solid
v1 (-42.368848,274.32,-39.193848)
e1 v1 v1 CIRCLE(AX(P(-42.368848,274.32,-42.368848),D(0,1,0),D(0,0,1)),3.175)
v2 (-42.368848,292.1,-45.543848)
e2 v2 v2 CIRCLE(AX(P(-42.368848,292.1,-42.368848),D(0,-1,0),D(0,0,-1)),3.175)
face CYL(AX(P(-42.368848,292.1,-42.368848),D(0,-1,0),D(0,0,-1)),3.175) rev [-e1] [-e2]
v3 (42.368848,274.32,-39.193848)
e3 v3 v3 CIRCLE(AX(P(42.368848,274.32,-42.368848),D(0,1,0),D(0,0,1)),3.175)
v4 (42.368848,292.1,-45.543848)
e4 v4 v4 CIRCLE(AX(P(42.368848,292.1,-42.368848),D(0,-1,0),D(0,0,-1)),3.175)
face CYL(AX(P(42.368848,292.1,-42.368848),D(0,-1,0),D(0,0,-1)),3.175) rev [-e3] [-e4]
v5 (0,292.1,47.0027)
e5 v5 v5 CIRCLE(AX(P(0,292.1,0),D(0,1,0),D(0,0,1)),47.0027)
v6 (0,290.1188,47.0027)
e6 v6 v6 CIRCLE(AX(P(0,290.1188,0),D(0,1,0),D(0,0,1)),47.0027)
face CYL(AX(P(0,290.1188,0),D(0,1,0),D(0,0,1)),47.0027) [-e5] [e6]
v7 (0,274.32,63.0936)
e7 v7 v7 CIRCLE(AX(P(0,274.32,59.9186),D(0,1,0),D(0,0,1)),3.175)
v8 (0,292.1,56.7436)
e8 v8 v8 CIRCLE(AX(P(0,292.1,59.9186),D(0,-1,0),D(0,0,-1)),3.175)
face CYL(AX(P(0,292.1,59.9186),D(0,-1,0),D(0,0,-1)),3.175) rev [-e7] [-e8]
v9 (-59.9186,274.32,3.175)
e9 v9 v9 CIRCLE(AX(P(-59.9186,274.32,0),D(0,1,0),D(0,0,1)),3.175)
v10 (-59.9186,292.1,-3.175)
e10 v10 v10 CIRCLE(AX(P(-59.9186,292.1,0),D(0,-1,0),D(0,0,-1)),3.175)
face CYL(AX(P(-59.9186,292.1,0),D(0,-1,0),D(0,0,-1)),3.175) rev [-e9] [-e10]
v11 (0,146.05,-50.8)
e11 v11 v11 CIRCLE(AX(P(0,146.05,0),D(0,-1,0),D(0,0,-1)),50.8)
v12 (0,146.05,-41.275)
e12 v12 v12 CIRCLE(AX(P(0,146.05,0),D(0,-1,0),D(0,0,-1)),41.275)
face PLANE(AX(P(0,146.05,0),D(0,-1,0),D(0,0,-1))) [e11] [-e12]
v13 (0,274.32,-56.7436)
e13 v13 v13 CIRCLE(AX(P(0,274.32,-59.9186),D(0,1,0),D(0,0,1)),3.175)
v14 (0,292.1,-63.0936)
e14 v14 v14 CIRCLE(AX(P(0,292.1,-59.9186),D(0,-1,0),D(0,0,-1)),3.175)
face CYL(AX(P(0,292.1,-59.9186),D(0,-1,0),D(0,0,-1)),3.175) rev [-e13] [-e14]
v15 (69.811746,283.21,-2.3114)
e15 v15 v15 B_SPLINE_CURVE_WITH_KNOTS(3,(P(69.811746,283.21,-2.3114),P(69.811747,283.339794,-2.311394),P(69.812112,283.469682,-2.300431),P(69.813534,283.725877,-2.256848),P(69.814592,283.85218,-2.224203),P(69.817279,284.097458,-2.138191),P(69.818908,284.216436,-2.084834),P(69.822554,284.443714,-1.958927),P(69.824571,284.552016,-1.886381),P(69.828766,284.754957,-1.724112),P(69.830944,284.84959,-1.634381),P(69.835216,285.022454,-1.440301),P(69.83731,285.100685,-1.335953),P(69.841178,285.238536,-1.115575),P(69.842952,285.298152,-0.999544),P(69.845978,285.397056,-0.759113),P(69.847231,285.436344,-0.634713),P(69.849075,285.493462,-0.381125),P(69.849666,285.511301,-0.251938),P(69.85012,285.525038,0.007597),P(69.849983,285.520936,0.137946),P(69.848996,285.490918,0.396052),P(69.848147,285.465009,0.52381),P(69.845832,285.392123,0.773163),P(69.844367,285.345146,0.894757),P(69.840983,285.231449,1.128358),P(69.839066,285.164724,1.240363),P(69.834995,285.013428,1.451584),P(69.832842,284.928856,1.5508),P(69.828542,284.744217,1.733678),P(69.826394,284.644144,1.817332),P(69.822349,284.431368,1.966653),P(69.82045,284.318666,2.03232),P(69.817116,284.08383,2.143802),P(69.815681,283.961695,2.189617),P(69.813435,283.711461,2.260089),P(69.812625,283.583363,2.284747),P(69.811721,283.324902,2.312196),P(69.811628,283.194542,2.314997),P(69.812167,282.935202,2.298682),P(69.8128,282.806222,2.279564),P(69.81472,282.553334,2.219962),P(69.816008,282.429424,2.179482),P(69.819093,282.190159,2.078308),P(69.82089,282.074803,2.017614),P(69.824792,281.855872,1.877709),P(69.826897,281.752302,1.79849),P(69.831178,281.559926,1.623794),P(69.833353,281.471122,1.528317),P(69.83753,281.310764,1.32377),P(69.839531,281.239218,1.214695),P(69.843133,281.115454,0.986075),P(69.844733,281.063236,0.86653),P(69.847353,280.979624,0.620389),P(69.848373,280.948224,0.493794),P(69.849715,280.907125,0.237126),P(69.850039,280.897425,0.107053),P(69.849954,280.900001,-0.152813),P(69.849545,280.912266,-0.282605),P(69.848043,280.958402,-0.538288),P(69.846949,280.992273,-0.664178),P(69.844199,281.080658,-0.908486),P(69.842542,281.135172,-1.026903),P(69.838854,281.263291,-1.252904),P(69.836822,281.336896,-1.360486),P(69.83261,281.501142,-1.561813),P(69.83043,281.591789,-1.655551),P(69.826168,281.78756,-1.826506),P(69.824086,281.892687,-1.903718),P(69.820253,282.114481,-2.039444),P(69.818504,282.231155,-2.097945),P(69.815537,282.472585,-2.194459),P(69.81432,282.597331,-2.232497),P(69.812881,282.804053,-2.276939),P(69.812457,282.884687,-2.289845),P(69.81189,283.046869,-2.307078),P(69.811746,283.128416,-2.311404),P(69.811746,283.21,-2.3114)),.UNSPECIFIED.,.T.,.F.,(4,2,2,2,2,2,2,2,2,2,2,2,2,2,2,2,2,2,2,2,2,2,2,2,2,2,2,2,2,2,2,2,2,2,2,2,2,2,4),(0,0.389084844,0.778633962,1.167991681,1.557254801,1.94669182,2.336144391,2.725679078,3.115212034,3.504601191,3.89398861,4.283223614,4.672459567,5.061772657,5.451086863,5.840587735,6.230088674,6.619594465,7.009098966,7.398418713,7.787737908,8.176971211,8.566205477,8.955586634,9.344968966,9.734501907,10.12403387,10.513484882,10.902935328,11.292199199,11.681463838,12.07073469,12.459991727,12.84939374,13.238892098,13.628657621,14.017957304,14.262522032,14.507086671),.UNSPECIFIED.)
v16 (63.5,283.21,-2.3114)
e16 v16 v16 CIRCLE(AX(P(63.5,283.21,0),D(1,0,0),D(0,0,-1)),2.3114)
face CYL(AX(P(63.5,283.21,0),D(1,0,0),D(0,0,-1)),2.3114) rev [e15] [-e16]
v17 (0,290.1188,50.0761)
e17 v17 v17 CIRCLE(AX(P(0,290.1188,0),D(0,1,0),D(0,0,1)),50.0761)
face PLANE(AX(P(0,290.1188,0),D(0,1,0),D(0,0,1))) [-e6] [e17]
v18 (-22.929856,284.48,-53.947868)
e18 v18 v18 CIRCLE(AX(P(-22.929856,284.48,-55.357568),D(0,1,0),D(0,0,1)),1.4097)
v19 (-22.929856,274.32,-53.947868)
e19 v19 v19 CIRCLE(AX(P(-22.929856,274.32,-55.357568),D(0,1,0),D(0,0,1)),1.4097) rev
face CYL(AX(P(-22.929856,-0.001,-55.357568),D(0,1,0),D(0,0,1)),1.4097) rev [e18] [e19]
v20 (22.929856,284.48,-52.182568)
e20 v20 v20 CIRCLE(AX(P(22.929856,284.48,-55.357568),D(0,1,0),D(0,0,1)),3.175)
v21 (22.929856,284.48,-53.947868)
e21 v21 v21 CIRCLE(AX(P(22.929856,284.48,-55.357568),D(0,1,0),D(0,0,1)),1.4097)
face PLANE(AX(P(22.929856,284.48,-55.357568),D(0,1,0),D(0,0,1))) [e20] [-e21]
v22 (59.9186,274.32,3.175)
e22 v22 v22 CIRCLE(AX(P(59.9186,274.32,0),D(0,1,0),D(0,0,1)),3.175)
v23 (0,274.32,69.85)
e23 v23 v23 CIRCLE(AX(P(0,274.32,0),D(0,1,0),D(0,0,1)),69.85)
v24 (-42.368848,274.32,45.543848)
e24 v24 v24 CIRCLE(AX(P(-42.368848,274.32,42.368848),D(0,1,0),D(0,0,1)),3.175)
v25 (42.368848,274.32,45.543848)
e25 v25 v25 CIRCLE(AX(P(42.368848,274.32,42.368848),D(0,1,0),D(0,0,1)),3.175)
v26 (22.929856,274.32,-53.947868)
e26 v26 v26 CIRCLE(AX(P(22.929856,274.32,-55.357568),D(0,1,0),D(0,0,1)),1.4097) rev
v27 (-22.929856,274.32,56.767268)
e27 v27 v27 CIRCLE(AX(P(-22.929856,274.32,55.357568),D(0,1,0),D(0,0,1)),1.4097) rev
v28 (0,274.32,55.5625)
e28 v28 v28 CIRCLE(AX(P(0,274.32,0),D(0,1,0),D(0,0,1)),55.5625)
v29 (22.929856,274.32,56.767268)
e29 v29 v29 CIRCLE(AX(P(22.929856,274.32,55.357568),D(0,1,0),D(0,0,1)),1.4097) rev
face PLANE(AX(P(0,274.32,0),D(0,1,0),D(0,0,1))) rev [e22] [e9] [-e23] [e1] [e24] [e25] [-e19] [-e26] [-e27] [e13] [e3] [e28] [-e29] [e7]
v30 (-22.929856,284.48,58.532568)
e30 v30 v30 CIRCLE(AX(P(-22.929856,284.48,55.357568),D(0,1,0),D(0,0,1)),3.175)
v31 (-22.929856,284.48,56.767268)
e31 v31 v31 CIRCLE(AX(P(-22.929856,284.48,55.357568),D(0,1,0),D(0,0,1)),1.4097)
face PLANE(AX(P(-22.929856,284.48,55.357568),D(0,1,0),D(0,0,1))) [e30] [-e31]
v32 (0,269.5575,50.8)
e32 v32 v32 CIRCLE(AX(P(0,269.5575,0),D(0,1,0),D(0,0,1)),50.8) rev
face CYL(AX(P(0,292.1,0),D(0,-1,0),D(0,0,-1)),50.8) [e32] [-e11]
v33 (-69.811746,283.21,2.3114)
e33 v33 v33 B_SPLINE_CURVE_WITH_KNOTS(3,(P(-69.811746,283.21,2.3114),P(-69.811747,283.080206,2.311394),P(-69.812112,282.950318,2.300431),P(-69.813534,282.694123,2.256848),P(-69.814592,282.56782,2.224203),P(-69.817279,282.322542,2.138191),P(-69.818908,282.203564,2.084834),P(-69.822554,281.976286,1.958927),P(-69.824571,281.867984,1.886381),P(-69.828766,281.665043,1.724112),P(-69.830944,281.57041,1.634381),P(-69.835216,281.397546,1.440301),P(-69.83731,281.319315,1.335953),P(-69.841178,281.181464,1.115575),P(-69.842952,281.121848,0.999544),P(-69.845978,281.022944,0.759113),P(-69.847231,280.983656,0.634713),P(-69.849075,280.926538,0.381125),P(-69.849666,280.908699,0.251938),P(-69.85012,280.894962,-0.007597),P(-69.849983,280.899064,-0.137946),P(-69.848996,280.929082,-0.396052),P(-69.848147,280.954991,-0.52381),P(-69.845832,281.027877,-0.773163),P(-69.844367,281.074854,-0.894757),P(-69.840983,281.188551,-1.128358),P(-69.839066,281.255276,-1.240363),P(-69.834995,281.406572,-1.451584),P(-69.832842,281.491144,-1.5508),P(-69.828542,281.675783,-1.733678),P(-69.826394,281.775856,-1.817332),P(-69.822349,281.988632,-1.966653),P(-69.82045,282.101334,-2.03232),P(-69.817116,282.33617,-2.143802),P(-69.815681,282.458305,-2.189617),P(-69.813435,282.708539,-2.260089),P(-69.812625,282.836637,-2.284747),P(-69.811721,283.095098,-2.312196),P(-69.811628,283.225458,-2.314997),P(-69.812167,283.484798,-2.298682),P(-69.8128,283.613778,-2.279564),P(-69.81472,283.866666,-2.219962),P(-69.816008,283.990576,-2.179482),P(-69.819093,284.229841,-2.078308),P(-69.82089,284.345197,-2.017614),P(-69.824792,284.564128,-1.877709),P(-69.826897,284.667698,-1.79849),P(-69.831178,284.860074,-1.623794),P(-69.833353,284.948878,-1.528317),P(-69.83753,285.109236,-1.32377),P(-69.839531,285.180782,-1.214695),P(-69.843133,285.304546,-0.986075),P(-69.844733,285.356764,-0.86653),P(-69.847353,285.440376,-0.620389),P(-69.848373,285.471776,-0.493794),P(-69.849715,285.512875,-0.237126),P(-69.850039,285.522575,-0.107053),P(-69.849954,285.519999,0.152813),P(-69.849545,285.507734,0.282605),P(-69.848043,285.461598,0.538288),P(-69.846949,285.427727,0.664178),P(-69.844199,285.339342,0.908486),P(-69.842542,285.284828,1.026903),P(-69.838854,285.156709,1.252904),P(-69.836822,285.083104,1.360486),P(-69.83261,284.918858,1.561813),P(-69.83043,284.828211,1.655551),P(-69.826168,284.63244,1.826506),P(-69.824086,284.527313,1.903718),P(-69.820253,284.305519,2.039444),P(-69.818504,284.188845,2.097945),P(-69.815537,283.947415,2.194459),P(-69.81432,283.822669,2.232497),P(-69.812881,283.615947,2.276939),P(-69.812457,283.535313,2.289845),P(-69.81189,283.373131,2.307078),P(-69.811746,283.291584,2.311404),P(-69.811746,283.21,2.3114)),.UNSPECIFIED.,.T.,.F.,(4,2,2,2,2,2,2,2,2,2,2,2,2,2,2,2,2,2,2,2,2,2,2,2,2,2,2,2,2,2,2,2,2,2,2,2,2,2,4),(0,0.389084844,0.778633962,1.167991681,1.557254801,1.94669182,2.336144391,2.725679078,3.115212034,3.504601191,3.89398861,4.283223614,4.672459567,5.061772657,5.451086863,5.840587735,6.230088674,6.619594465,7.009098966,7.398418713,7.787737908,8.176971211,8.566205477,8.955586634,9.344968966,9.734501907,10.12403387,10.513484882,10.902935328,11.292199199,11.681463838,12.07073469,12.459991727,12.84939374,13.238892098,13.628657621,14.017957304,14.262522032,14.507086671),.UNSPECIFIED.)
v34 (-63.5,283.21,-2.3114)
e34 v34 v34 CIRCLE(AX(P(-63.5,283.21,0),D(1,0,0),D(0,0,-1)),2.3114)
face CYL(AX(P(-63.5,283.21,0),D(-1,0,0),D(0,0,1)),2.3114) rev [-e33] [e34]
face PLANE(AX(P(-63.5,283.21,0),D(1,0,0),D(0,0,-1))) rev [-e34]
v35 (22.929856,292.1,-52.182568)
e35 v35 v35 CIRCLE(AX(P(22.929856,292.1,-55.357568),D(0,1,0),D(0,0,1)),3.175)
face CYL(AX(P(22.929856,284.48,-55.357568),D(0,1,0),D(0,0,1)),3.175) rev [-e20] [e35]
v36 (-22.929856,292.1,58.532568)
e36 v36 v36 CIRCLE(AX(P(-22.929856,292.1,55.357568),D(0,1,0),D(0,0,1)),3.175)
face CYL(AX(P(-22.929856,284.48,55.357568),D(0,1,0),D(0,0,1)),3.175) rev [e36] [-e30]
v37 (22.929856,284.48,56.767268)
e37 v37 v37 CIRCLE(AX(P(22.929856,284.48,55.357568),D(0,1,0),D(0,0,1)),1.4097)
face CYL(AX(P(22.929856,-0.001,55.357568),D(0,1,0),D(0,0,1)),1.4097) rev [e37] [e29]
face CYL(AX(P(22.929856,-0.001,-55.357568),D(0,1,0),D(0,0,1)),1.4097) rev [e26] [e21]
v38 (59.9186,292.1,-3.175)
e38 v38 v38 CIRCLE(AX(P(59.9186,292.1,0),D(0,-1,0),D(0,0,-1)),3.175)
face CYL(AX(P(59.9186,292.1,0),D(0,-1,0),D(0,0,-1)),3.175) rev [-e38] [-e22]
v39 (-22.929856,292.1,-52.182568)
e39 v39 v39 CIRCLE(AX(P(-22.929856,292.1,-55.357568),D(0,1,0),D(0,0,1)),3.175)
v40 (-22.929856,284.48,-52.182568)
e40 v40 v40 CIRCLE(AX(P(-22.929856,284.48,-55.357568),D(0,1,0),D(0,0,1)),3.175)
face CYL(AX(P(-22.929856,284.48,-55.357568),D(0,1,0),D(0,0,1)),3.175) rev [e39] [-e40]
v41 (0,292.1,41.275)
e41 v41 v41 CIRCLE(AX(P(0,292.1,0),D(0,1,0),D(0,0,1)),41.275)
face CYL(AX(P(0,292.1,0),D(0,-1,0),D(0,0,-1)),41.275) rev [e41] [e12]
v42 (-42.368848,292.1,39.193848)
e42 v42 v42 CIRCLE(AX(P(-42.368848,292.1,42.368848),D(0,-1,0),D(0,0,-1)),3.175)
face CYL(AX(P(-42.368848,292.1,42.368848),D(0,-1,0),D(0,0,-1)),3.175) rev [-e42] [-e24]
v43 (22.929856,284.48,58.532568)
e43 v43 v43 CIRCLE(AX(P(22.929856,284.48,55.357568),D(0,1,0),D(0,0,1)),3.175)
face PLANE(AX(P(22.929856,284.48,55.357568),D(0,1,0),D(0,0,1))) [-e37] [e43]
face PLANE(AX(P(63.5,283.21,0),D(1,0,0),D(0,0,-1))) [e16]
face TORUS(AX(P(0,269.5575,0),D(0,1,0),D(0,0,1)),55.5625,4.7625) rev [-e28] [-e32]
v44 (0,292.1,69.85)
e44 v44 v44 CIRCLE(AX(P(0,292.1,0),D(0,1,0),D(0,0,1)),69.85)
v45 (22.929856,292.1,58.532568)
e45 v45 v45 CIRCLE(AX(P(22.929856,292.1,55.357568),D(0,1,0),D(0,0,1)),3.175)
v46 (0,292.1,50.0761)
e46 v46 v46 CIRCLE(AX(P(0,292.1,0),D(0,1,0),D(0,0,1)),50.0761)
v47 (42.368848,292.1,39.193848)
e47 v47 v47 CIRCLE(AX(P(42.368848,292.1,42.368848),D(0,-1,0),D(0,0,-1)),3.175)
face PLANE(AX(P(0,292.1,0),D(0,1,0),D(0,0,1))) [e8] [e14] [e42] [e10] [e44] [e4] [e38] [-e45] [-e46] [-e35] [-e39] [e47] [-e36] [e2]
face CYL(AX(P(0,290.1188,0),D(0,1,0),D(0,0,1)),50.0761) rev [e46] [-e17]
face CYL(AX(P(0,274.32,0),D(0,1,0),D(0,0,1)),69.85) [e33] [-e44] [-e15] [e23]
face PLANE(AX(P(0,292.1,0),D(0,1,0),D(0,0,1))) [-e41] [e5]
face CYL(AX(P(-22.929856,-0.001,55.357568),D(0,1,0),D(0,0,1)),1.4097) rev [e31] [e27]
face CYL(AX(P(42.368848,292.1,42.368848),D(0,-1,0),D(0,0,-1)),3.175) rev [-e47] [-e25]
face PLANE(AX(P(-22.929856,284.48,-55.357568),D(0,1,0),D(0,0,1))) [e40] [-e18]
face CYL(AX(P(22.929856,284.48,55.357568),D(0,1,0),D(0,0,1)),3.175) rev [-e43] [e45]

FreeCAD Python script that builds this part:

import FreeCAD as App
import Part
import Sketcher
from FreeCAD import Vector
Q = App.Units.Quantity


def edges_at(feature, points):
    """Names of the edges that pass closest to the given points."""
    edges = feature.Shape.Edges
    near = lambda p: min(range(len(edges)), key=lambda i: edges[i].distToShape(Part.Vertex(*p))[0])
    return sorted({f"Edge{near(p) + 1}" for p in points})

doc = App.newDocument("Part")
params = doc.addObject("Spreadsheet::Sheet", "Params")
for row, (alias, value) in enumerate([
    ("sketch1_diameter", "4 in"),
    ("sketch1_diameter2", "3.25 in"),
    ("pad1_length", "11.5 in"),
    ("sketch2_diameter", "5.5 in"),
    ("sketch2_diameter2", "3.25 in"),
    ("pad2_length", "0.7 in"),
    ("sketch3_diameter", "5.5 in"),
    ("sketch3_diameter2", "3.25 in"),
    ("pad3_length", "0.7 in"),
    ("sketch4_diameter", "3.943 in"),
    ("sketch4_diameter2", "3.701 in"),
    ("pocket1_length", "0.078 in"),
    ("sketch5_diameter", "3.943 in"),
    ("sketch5_diameter2", "3.701 in"),
    ("pocket2_length", "0.078 in"),
    ("sketch6_diameter", "0.25 in"),
    ("fillet_radius", "0.1875 in"),
    ("sketch7_diameter", "0.25 in"),
    ("pocket4_length", "0.3 in"),
    ("sketch8_diameter", "0.25 in"),
    ("pocket5_length", "0.3 in"),
    ("sketch9_diameter", "0.111 in"),
    ("sketch10_diameter", "0.111 in"),
    ("sketch11_diameter", "0.111 in"),
    ("sketch12_diameter", "0.111 in"),
    ("sketch13_diameter", "0.111 in"),
    ("sketch14_diameter", "0.111 in"),
    ("sketch15_diameter", "0.111 in"),
    ("sketch16_diameter", "0.111 in"),
    ("sketch17_diameter", "0.182 in"),
    ("pocket14_length", "0.25 in"),
    ("sketch18_diameter", "0.182 in"),
    ("pocket15_length", "0.25 in"),
    ("sketch19_diameter", "5.5 in"),
    ("pocket16_length", "5.75 in"),
], start=1):
    params.set(f"A{row}", alias)
    params.set(f"B{row}", "=" + value)
    params.setAlias(f"B{row}", alias)

body = doc.addObject("PartDesign::Body", "Body")

sketch1 = body.newObject("Sketcher::SketchObject", "Sketch")
sketch1.AttachmentSupport = (doc.getObject("XZ_Plane"), [""])
sketch1.MapMode = "FlatFace"
sketch1.addGeometry([
    Part.Circle(Vector(0, 0, 0), Vector(0, 0, 1), 50.8),
    Part.Circle(Vector(0, 0, 0), Vector(0, 0, 1), 41.275),
], False)
sketch1.addConstraint([
    Sketcher.Constraint("Coincident", 0, 3, -1, 1),
    Sketcher.Constraint("Coincident", 1, 3, -1, 1),
    Sketcher.Constraint("Diameter", 0, Q("4 in")),
    Sketcher.Constraint("Diameter", 1, Q("3.25 in")),
])
sketch1.setExpression("Constraints[2]", "Params.sketch1_diameter")
sketch1.setExpression("Constraints[3]", "Params.sketch1_diameter2")
pad1 = body.newObject("PartDesign::Pad", "Pad")
pad1.Profile = sketch1
pad1.setExpression("Length", "Params.pad1_length")
pad1.Reversed = True

sketch2 = body.newObject("Sketcher::SketchObject", "Sketch001")
sketch2.AttachmentSupport = (doc.getObject("XZ_Plane"), [""])
sketch2.MapMode = "FlatFace"
sketch2.addGeometry([
    Part.Circle(Vector(0, 0, 0), Vector(0, 0, 1), 69.85),
    Part.Circle(Vector(0, 0, 0), Vector(0, 0, 1), 41.275),
], False)
sketch2.addConstraint([
    Sketcher.Constraint("Coincident", 0, 3, -1, 1),
    Sketcher.Constraint("Coincident", 1, 3, -1, 1),
    Sketcher.Constraint("Diameter", 0, Q("5.5 in")),
    Sketcher.Constraint("Diameter", 1, Q("3.25 in")),
])
sketch2.setExpression("Constraints[2]", "Params.sketch2_diameter")
sketch2.setExpression("Constraints[3]", "Params.sketch2_diameter2")
pad2 = body.newObject("PartDesign::Pad", "Pad001")
pad2.Profile = sketch2
pad2.setExpression("Length", "Params.pad2_length")
pad2.Reversed = True

sketch3 = body.newObject("Sketcher::SketchObject", "Sketch002")
sketch3.AttachmentSupport = (doc.getObject("XZ_Plane"), [""])
sketch3.MapMode = "FlatFace"
sketch3.AttachmentOffset = App.Placement(Vector(0, 0, -11.5 * 25.4), App.Rotation())
sketch3.addGeometry([
    Part.Circle(Vector(0, 0, 0), Vector(0, 0, 1), 69.85),
    Part.Circle(Vector(0, 0, 0), Vector(0, 0, 1), 41.275),
], False)
sketch3.addConstraint([
    Sketcher.Constraint("Coincident", 0, 3, -1, 1),
    Sketcher.Constraint("Coincident", 1, 3, -1, 1),
    Sketcher.Constraint("Diameter", 0, Q("5.5 in")),
    Sketcher.Constraint("Diameter", 1, Q("3.25 in")),
])
sketch3.setExpression("Constraints[2]", "Params.sketch3_diameter")
sketch3.setExpression("Constraints[3]", "Params.sketch3_diameter2")
pad3 = body.newObject("PartDesign::Pad", "Pad002")
pad3.Profile = sketch3
pad3.setExpression("Length", "Params.pad3_length")

sketch4 = body.newObject("Sketcher::SketchObject", "Sketch003")
sketch4.AttachmentSupport = (doc.getObject("XZ_Plane"), [""])
sketch4.MapMode = "FlatFace"
sketch4.addGeometry([
    Part.Circle(Vector(0, 0, 0), Vector(0, 0, 1), 50.0761),
    Part.Circle(Vector(0, 0, 0), Vector(0, 0, 1), 47.0027),
], False)
sketch4.addConstraint([
    Sketcher.Constraint("Coincident", 0, 3, -1, 1),
    Sketcher.Constraint("Coincident", 1, 3, -1, 1),
    Sketcher.Constraint("Diameter", 0, Q("3.943 in")),
    Sketcher.Constraint("Diameter", 1, Q("3.701 in")),
])
sketch4.setExpression("Constraints[2]", "Params.sketch4_diameter")
sketch4.setExpression("Constraints[3]", "Params.sketch4_diameter2")
pocket1 = body.newObject("PartDesign::Pocket", "Pocket")
pocket1.Profile = sketch4
pocket1.setExpression("Length", "Params.pocket1_length")

sketch5 = body.newObject("Sketcher::SketchObject", "Sketch004")
sketch5.AttachmentSupport = (doc.getObject("XZ_Plane"), [""])
sketch5.MapMode = "FlatFace"
sketch5.AttachmentOffset = App.Placement(Vector(0, 0, -11.5 * 25.4), App.Rotation())
sketch5.addGeometry([
    Part.Circle(Vector(0, 0, 0), Vector(0, 0, 1), 50.0761),
    Part.Circle(Vector(0, 0, 0), Vector(0, 0, 1), 47.0027),
], False)
sketch5.addConstraint([
    Sketcher.Constraint("Coincident", 0, 3, -1, 1),
    Sketcher.Constraint("Coincident", 1, 3, -1, 1),
    Sketcher.Constraint("Diameter", 0, Q("3.943 in")),
    Sketcher.Constraint("Diameter", 1, Q("3.701 in")),
])
sketch5.setExpression("Constraints[2]", "Params.sketch5_diameter")
sketch5.setExpression("Constraints[3]", "Params.sketch5_diameter2")
pocket2 = body.newObject("PartDesign::Pocket", "Pocket001")
pocket2.Profile = sketch5
pocket2.setExpression("Length", "Params.pocket2_length")
pocket2.Reversed = True

sketch6 = body.newObject("Sketcher::SketchObject", "Sketch005")
sketch6.AttachmentSupport = (doc.getObject("XZ_Plane"), [""])
sketch6.MapMode = "FlatFace"
sketch6.addGeometry([
    Part.Circle(Vector(-59.9186, 0, 0), Vector(0, 0, 1), 3.175),
    Part.Circle(Vector(-42.368848, 42.368848, 0), Vector(0, 0, 1), 3.175),
    Part.Circle(Vector(0, 59.9186, 0), Vector(0, 0, 1), 3.175),
    Part.Circle(Vector(42.368848, 42.368848, 0), Vector(0, 0, 1), 3.175),
    Part.Circle(Vector(59.9186, 0, 0), Vector(0, 0, 1), 3.175),
    Part.Circle(Vector(42.368848, -42.368848, 0), Vector(0, 0, 1), 3.175),
    Part.Circle(Vector(0, -59.9186, 0), Vector(0, 0, 1), 3.175),
    Part.Circle(Vector(-42.368848, -42.368848, 0), Vector(0, 0, 1), 3.175),
], False)
sketch6.addConstraint([
    Sketcher.Constraint("Equal", 0, 1),
    Sketcher.Constraint("Equal", 1, 2),
    Sketcher.Constraint("Equal", 2, 3),
    Sketcher.Constraint("Equal", 3, 4),
    Sketcher.Constraint("Equal", 4, 5),
    Sketcher.Constraint("Equal", 5, 6),
    Sketcher.Constraint("Equal", 6, 7),
    Sketcher.Constraint("Symmetric", 0, 3, 4, 3, -1, 1),
    Sketcher.Constraint("Symmetric", 1, 3, 5, 3, -1, 1),
    Sketcher.Constraint("Symmetric", 2, 3, 6, 3, -1, 1),
    Sketcher.Constraint("Symmetric", 3, 3, 7, 3, -1, 1),
    Sketcher.Constraint("Symmetric", 1, 3, 3, 3, -2),
    Sketcher.Constraint("PointOnObject", 0, 3, -1),
    Sketcher.Constraint("PointOnObject", 2, 3, -2),
    Sketcher.Constraint("Diameter", 0, Q("0.25 in")),
    Sketcher.Constraint("DistanceX", 0, 3, -1, 1, Q("2.359 in")),
    Sketcher.Constraint("DistanceY", -1, 1, 2, 3, Q("2.359 in")),
    Sketcher.Constraint("DistanceX", 1, 3, -1, 1, 42.368848),
    Sketcher.Constraint("DistanceY", -1, 1, 1, 3, 42.368848),
])
sketch6.setExpression("Constraints[14]", "Params.sketch6_diameter")
pocket3 = body.newObject("PartDesign::Pocket", "Pocket002")
pocket3.Profile = sketch6
pocket3.Type = "ThroughAll"
pocket3.Midplane = True
doc.recompute()

fillet = body.newObject("PartDesign::Fillet", "Fillet")
fillet.Base = (pocket3, edges_at(pocket3, [(-50.8, 17.78, 0), (-50.8, 274.32, 0)]))
fillet.setExpression("Radius", "Params.fillet_radius")

sketch7 = body.newObject("Sketcher::SketchObject", "Sketch006")
sketch7.AttachmentSupport = (doc.getObject("XZ_Plane"), [""])
sketch7.MapMode = "FlatFace"
sketch7.AttachmentOffset = App.Placement(Vector(0, 0, -11.5 * 25.4), App.Rotation())
sketch7.addGeometry([
    Part.Circle(Vector(-22.929856, -55.357568, 0), Vector(0, 0, 1), 3.175),
    Part.Circle(Vector(22.929856, 55.357568, 0), Vector(0, 0, 1), 3.175),
    Part.Circle(Vector(22.929856, -55.357568, 0), Vector(0, 0, 1), 3.175),
    Part.Circle(Vector(-22.929856, 55.357568, 0), Vector(0, 0, 1), 3.175),
], False)
sketch7.addConstraint([
    Sketcher.Constraint("Equal", 0, 1),
    Sketcher.Constraint("Equal", 1, 2),
    Sketcher.Constraint("Equal", 2, 3),
    Sketcher.Constraint("Symmetric", 0, 3, 1, 3, -1, 1),
    Sketcher.Constraint("Symmetric", 2, 3, 3, 3, -1, 1),
    Sketcher.Constraint("Symmetric", 0, 3, 2, 3, -2),
    Sketcher.Constraint("Diameter", 0, Q("0.25 in")),
    Sketcher.Constraint("DistanceY", 0, 3, -1, 1, 55.357568),
    Sketcher.Constraint("DistanceX", 0, 3, 1, 3, 45.859711),
])
sketch7.setExpression("Constraints[6]", "Params.sketch7_diameter")
pocket4 = body.newObject("PartDesign::Pocket", "Pocket003")
pocket4.Profile = sketch7
pocket4.setExpression("Length", "Params.pocket4_length")
pocket4.Reversed = True

sketch8 = body.newObject("Sketcher::SketchObject", "Sketch007")
sketch8.AttachmentSupport = (doc.getObject("XZ_Plane"), [""])
sketch8.MapMode = "FlatFace"
sketch8.addGeometry([
    Part.Circle(Vector(-22.929856, 55.357568, 0), Vector(0, 0, 1), 3.175),
    Part.Circle(Vector(22.929856, -55.357568, 0), Vector(0, 0, 1), 3.175),
    Part.Circle(Vector(22.929856, 55.357568, 0), Vector(0, 0, 1), 3.175),
    Part.Circle(Vector(-22.929856, -55.357568, 0), Vector(0, 0, 1), 3.175),
], False)
sketch8.addConstraint([
    Sketcher.Constraint("Equal", 0, 1),
    Sketcher.Constraint("Equal", 1, 2),
    Sketcher.Constraint("Equal", 2, 3),
    Sketcher.Constraint("Symmetric", 0, 3, 1, 3, -1, 1),
    Sketcher.Constraint("Symmetric", 2, 3, 3, 3, -1, 1),
    Sketcher.Constraint("Symmetric", 0, 3, 2, 3, -2),
    Sketcher.Constraint("Diameter", 0, Q("0.25 in")),
    Sketcher.Constraint("DistanceY", -1, 1, 0, 3, 55.357568),
    Sketcher.Constraint("DistanceX", 0, 3, 1, 3, 45.859711),
])
sketch8.setExpression("Constraints[6]", "Params.sketch8_diameter")
pocket5 = body.newObject("PartDesign::Pocket", "Pocket004")
pocket5.Profile = sketch8
pocket5.setExpression("Length", "Params.pocket5_length")

sketch9 = body.newObject("Sketcher::SketchObject", "Sketch008")
sketch9.AttachmentSupport = (doc.getObject("XZ_Plane"), [""])
sketch9.MapMode = "FlatFace"
sketch9.AttachmentOffset = App.Placement(Vector(0, 0, -11.2 * 25.4), App.Rotation())
sketch9.addGeometry(Part.Circle(Vector(-22.929856, -55.357568, 0), Vector(0, 0, 1), 1.4097), False)
sketch9.addConstraint([
    Sketcher.Constraint("Diameter", 0, Q("0.111 in")),
    Sketcher.Constraint("DistanceY", 0, 3, -1, 1, 55.357568),
    Sketcher.Constraint("DistanceX", 0, 3, -1, 1, 22.929856),
])
sketch9.setExpression("Constraints[0]", "Params.sketch9_diameter")
pocket6 = body.newObject("PartDesign::Pocket", "Pocket005")
pocket6.Profile = sketch9
pocket6.Type = "UpToFirst"
pocket6.Reversed = True

sketch10 = body.newObject("Sketcher::SketchObject", "Sketch009")
sketch10.AttachmentSupport = (doc.getObject("XZ_Plane"), [""])
sketch10.MapMode = "FlatFace"
sketch10.AttachmentOffset = App.Placement(Vector(0, 0, -11.2 * 25.4), App.Rotation())
sketch10.addGeometry(Part.Circle(Vector(22.929856, -55.357568, 0), Vector(0, 0, 1), 1.4097), False)
sketch10.addConstraint([
    Sketcher.Constraint("Diameter", 0, Q("0.111 in")),
    Sketcher.Constraint("DistanceY", 0, 3, -1, 1, 55.357568),
    Sketcher.Constraint("DistanceX", -1, 1, 0, 3, 22.929856),
])
sketch10.setExpression("Constraints[0]", "Params.sketch10_diameter")
pocket7 = body.newObject("PartDesign::Pocket", "Pocket006")
pocket7.Profile = sketch10
pocket7.Type = "UpToFirst"
pocket7.Reversed = True

sketch11 = body.newObject("Sketcher::SketchObject", "Sketch010")
sketch11.AttachmentSupport = (doc.getObject("XZ_Plane"), [""])
sketch11.MapMode = "FlatFace"
sketch11.AttachmentOffset = App.Placement(Vector(0, 0, -11.2 * 25.4), App.Rotation())
sketch11.addGeometry(Part.Circle(Vector(-22.929856, 55.357568, 0), Vector(0, 0, 1), 1.4097), False)
sketch11.addConstraint([
    Sketcher.Constraint("Diameter", 0, Q("0.111 in")),
    Sketcher.Constraint("DistanceY", -1, 1, 0, 3, 55.357568),
    Sketcher.Constraint("DistanceX", 0, 3, -1, 1, 22.929856),
])
sketch11.setExpression("Constraints[0]", "Params.sketch11_diameter")
pocket8 = body.newObject("PartDesign::Pocket", "Pocket007")
pocket8.Profile = sketch11
pocket8.Type = "UpToFirst"
pocket8.Reversed = True

sketch12 = body.newObject("Sketcher::SketchObject", "Sketch011")
sketch12.AttachmentSupport = (doc.getObject("XZ_Plane"), [""])
sketch12.MapMode = "FlatFace"
sketch12.AttachmentOffset = App.Placement(Vector(0, 0, -11.2 * 25.4), App.Rotation())
sketch12.addGeometry(Part.Circle(Vector(22.929856, 55.357568, 0), Vector(0, 0, 1), 1.4097), False)
sketch12.addConstraint([
    Sketcher.Constraint("Diameter", 0, Q("0.111 in")),
    Sketcher.Constraint("DistanceY", -1, 1, 0, 3, 55.357568),
    Sketcher.Constraint("DistanceX", -1, 1, 0, 3, 22.929856),
])
sketch12.setExpression("Constraints[0]", "Params.sketch12_diameter")
pocket9 = body.newObject("PartDesign::Pocket", "Pocket008")
pocket9.Profile = sketch12
pocket9.Type = "UpToFirst"
pocket9.Reversed = True

sketch13 = body.newObject("Sketcher::SketchObject", "Sketch012")
sketch13.AttachmentSupport = (doc.getObject("XZ_Plane"), [""])
sketch13.MapMode = "FlatFace"
sketch13.AttachmentOffset = App.Placement(Vector(0, 0, -0.3 * 25.4), App.Rotation())
sketch13.addGeometry(Part.Circle(Vector(-22.929856, 55.357568, 0), Vector(0, 0, 1), 1.4097), False)
sketch13.addConstraint([
    Sketcher.Constraint("Diameter", 0, Q("0.111 in")),
    Sketcher.Constraint("DistanceY", -1, 1, 0, 3, 55.357568),
    Sketcher.Constraint("DistanceX", 0, 3, -1, 1, 22.929856),
])
sketch13.setExpression("Constraints[0]", "Params.sketch13_diameter")
pocket10 = body.newObject("PartDesign::Pocket", "Pocket009")
pocket10.Profile = sketch13
pocket10.Type = "UpToFirst"

sketch14 = body.newObject("Sketcher::SketchObject", "Sketch013")
sketch14.AttachmentSupport = (doc.getObject("XZ_Plane"), [""])
sketch14.MapMode = "FlatFace"
sketch14.AttachmentOffset = App.Placement(Vector(0, 0, -0.3 * 25.4), App.Rotation())
sketch14.addGeometry(Part.Circle(Vector(22.929856, 55.357568, 0), Vector(0, 0, 1), 1.4097), False)
sketch14.addConstraint([
    Sketcher.Constraint("Diameter", 0, Q("0.111 in")),
    Sketcher.Constraint("DistanceY", -1, 1, 0, 3, 55.357568),
    Sketcher.Constraint("DistanceX", -1, 1, 0, 3, 22.929856),
])
sketch14.setExpression("Constraints[0]", "Params.sketch14_diameter")
pocket11 = body.newObject("PartDesign::Pocket", "Pocket010")
pocket11.Profile = sketch14
pocket11.Type = "UpToFirst"

sketch15 = body.newObject("Sketcher::SketchObject", "Sketch014")
sketch15.AttachmentSupport = (doc.getObject("XZ_Plane"), [""])
sketch15.MapMode = "FlatFace"
sketch15.AttachmentOffset = App.Placement(Vector(0, 0, -0.3 * 25.4), App.Rotation())
sketch15.addGeometry(Part.Circle(Vector(-22.929856, -55.357568, 0), Vector(0, 0, 1), 1.4097), False)
sketch15.addConstraint([
    Sketcher.Constraint("Diameter", 0, Q("0.111 in")),
    Sketcher.Constraint("DistanceY", 0, 3, -1, 1, 55.357568),
    Sketcher.Constraint("DistanceX", 0, 3, -1, 1, 22.929856),
])
sketch15.setExpression("Constraints[0]", "Params.sketch15_diameter")
pocket12 = body.newObject("PartDesign::Pocket", "Pocket011")
pocket12.Profile = sketch15
pocket12.Type = "UpToFirst"

sketch16 = body.newObject("Sketcher::SketchObject", "Sketch015")
sketch16.AttachmentSupport = (doc.getObject("XZ_Plane"), [""])
sketch16.MapMode = "FlatFace"
sketch16.AttachmentOffset = App.Placement(Vector(0, 0, -0.3 * 25.4), App.Rotation())
sketch16.addGeometry(Part.Circle(Vector(22.929856, -55.357568, 0), Vector(0, 0, 1), 1.4097), False)
sketch16.addConstraint([
    Sketcher.Constraint("Diameter", 0, Q("0.111 in")),
    Sketcher.Constraint("DistanceY", 0, 3, -1, 1, 55.357568),
    Sketcher.Constraint("DistanceX", -1, 1, 0, 3, 22.929856),
])
sketch16.setExpression("Constraints[0]", "Params.sketch16_diameter")
pocket13 = body.newObject("PartDesign::Pocket", "Pocket012")
pocket13.Profile = sketch16
pocket13.Type = "UpToFirst"

sketch17 = body.newObject("Sketcher::SketchObject", "Sketch016")
sketch17.AttachmentSupport = (doc.getObject("YZ_Plane"), [""])
sketch17.MapMode = "FlatFace"
sketch17.AttachmentOffset = App.Placement(Vector(0, 0, -2.75 * 25.4), App.Rotation())
sketch17.addGeometry(Part.Circle(Vector(283.21, 0, 0), Vector(0, 0, 1), 2.3114), False)
sketch17.addConstraint([
    Sketcher.Constraint("PointOnObject", 0, 3, -1),
    Sketcher.Constraint("Diameter", 0, Q("0.182 in")),
    Sketcher.Constraint("DistanceX", -1, 1, 0, 3, Q("11.15 in")),
])
sketch17.setExpression("Constraints[1]", "Params.sketch17_diameter")
pocket14 = body.newObject("PartDesign::Pocket", "Pocket013")
pocket14.Profile = sketch17
pocket14.setExpression("Length", "Params.pocket14_length")
pocket14.Reversed = True

sketch18 = body.newObject("Sketcher::SketchObject", "Sketch017")
sketch18.AttachmentSupport = (doc.getObject("YZ_Plane"), [""])
sketch18.MapMode = "FlatFace"
sketch18.AttachmentOffset = App.Placement(Vector(0, 0, 2.75 * 25.4), App.Rotation())
sketch18.addGeometry(Part.Circle(Vector(283.21, 0, 0), Vector(0, 0, 1), 2.3114), False)
sketch18.addConstraint([
    Sketcher.Constraint("PointOnObject", 0, 3, -1),
    Sketcher.Constraint("Diameter", 0, Q("0.182 in")),
    Sketcher.Constraint("DistanceX", -1, 1, 0, 3, Q("11.15 in")),
])
sketch18.setExpression("Constraints[1]", "Params.sketch18_diameter")
pocket15 = body.newObject("PartDesign::Pocket", "Pocket014")
pocket15.Profile = sketch18
pocket15.setExpression("Length", "Params.pocket15_length")

sketch19 = body.newObject("Sketcher::SketchObject", "Sketch018")
sketch19.AttachmentSupport = (doc.getObject("XZ_Plane"), [""])
sketch19.MapMode = "FlatFace"
sketch19.addGeometry(Part.Circle(Vector(0, 0, 0), Vector(0, 0, 1), 69.85), False)
sketch19.addConstraint([
    Sketcher.Constraint("Coincident", 0, 3, -1, 1),
    Sketcher.Constraint("Diameter", 0, Q("5.5 in")),
])
sketch19.setExpression("Constraints[1]", "Params.sketch19_diameter")
pocket16 = body.newObject("PartDesign::Pocket", "Pocket015")
pocket16.Profile = sketch19
pocket16.setExpression("Length", "Params.pocket16_length")

doc.recompute()
